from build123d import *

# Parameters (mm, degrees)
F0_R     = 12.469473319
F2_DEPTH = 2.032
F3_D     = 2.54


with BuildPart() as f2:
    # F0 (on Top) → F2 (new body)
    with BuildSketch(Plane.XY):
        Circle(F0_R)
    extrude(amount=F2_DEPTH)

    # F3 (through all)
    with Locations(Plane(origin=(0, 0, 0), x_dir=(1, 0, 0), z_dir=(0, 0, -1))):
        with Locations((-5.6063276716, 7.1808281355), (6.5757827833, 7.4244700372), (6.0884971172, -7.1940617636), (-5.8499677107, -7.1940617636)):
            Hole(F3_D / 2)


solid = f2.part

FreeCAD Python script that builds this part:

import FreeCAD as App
import Part
import Sketcher
Q = App.Units.Quantity

doc = App.newDocument("Part")
body = doc.addObject("PartDesign::Body", "Body")

# Sketch on XY plane
sketch1 = doc.addObject("Sketcher::SketchObject", "Sketch")
body.addObject(sketch1)
sketch1.AttachmentSupport = (doc.XY_Plane, [""])
sketch1.MapMode = "FlatFace"
sketch1.addGeometry(Part.Circle(App.Vector(0, 0, 0), App.Vector(0, 0, 1), 12), False)
sketch1.addConstraint([
    Sketcher.Constraint("Coincident", 0, 3, -1, 1),
    Sketcher.Constraint("Diameter", 0, Q("24.938947 mm")),
])
pad1 = doc.addObject("PartDesign::Pad", "Pad")
body.addObject(pad1)
pad1.Profile = sketch1
pad1.Length = Q("0.08 in")

# Sketch on XY plane
sketch2 = doc.addObject("Sketcher::SketchObject", "Sketch001")
body.addObject(sketch2)
sketch2.AttachmentSupport = (doc.XY_Plane, [""])
sketch2.MapMode = "FlatFace"
sketch2.addGeometry([
    Part.Circle(App.Vector(-5.6, -7.2, 0), App.Vector(0, 0, 1), 1.3),
    Part.Circle(App.Vector(6.6, -7.4, 0), App.Vector(0, 0, 1), 1.3),
    Part.Circle(App.Vector(6.1, 7.2, 0), App.Vector(0, 0, 1), 1.3),
    Part.Circle(App.Vector(-5.8, 7.2, 0), App.Vector(0, 0, 1), 1.3),
], False)
sketch2.addConstraint([
    Sketcher.Constraint("Equal", 0, 1),
    Sketcher.Constraint("Equal", 1, 2),
    Sketcher.Constraint("Equal", 2, 3),
    Sketcher.Constraint("Horizontal", 2, 3, 3, 3),
    Sketcher.Constraint("Diameter", 0, Q("0.1 in")),
    Sketcher.Constraint("DistanceY", 0, 3, -1, 1, Q("7.180828 mm")),
    Sketcher.Constraint("DistanceY", 1, 3, -1, 1, Q("7.42447 mm")),
    Sketcher.Constraint("DistanceY", -1, 1, 2, 3, Q("7.194062 mm")),
    Sketcher.Constraint("DistanceX", 0, 3, 1, 3, Q("12.18211 mm")),
    Sketcher.Constraint("DistanceX", 3, 3, 0, 3, Q("0.24364 mm")),
    Sketcher.Constraint("DistanceX", 0, 3, -1, 1, Q("5.606328 mm")),
    Sketcher.Constraint("DistanceX", -1, 1, 2, 3, Q("6.088497 mm")),
])
doc.recompute()
hole = doc.addObject("PartDesign::Hole", "Hole")
body.addObject(hole)
hole.Profile = sketch2
hole.ThreadType = "None"
hole.Diameter = Q("0.1 in")
hole.DepthType = "ThroughAll"
hole.Reversed = True

doc.recompute()
